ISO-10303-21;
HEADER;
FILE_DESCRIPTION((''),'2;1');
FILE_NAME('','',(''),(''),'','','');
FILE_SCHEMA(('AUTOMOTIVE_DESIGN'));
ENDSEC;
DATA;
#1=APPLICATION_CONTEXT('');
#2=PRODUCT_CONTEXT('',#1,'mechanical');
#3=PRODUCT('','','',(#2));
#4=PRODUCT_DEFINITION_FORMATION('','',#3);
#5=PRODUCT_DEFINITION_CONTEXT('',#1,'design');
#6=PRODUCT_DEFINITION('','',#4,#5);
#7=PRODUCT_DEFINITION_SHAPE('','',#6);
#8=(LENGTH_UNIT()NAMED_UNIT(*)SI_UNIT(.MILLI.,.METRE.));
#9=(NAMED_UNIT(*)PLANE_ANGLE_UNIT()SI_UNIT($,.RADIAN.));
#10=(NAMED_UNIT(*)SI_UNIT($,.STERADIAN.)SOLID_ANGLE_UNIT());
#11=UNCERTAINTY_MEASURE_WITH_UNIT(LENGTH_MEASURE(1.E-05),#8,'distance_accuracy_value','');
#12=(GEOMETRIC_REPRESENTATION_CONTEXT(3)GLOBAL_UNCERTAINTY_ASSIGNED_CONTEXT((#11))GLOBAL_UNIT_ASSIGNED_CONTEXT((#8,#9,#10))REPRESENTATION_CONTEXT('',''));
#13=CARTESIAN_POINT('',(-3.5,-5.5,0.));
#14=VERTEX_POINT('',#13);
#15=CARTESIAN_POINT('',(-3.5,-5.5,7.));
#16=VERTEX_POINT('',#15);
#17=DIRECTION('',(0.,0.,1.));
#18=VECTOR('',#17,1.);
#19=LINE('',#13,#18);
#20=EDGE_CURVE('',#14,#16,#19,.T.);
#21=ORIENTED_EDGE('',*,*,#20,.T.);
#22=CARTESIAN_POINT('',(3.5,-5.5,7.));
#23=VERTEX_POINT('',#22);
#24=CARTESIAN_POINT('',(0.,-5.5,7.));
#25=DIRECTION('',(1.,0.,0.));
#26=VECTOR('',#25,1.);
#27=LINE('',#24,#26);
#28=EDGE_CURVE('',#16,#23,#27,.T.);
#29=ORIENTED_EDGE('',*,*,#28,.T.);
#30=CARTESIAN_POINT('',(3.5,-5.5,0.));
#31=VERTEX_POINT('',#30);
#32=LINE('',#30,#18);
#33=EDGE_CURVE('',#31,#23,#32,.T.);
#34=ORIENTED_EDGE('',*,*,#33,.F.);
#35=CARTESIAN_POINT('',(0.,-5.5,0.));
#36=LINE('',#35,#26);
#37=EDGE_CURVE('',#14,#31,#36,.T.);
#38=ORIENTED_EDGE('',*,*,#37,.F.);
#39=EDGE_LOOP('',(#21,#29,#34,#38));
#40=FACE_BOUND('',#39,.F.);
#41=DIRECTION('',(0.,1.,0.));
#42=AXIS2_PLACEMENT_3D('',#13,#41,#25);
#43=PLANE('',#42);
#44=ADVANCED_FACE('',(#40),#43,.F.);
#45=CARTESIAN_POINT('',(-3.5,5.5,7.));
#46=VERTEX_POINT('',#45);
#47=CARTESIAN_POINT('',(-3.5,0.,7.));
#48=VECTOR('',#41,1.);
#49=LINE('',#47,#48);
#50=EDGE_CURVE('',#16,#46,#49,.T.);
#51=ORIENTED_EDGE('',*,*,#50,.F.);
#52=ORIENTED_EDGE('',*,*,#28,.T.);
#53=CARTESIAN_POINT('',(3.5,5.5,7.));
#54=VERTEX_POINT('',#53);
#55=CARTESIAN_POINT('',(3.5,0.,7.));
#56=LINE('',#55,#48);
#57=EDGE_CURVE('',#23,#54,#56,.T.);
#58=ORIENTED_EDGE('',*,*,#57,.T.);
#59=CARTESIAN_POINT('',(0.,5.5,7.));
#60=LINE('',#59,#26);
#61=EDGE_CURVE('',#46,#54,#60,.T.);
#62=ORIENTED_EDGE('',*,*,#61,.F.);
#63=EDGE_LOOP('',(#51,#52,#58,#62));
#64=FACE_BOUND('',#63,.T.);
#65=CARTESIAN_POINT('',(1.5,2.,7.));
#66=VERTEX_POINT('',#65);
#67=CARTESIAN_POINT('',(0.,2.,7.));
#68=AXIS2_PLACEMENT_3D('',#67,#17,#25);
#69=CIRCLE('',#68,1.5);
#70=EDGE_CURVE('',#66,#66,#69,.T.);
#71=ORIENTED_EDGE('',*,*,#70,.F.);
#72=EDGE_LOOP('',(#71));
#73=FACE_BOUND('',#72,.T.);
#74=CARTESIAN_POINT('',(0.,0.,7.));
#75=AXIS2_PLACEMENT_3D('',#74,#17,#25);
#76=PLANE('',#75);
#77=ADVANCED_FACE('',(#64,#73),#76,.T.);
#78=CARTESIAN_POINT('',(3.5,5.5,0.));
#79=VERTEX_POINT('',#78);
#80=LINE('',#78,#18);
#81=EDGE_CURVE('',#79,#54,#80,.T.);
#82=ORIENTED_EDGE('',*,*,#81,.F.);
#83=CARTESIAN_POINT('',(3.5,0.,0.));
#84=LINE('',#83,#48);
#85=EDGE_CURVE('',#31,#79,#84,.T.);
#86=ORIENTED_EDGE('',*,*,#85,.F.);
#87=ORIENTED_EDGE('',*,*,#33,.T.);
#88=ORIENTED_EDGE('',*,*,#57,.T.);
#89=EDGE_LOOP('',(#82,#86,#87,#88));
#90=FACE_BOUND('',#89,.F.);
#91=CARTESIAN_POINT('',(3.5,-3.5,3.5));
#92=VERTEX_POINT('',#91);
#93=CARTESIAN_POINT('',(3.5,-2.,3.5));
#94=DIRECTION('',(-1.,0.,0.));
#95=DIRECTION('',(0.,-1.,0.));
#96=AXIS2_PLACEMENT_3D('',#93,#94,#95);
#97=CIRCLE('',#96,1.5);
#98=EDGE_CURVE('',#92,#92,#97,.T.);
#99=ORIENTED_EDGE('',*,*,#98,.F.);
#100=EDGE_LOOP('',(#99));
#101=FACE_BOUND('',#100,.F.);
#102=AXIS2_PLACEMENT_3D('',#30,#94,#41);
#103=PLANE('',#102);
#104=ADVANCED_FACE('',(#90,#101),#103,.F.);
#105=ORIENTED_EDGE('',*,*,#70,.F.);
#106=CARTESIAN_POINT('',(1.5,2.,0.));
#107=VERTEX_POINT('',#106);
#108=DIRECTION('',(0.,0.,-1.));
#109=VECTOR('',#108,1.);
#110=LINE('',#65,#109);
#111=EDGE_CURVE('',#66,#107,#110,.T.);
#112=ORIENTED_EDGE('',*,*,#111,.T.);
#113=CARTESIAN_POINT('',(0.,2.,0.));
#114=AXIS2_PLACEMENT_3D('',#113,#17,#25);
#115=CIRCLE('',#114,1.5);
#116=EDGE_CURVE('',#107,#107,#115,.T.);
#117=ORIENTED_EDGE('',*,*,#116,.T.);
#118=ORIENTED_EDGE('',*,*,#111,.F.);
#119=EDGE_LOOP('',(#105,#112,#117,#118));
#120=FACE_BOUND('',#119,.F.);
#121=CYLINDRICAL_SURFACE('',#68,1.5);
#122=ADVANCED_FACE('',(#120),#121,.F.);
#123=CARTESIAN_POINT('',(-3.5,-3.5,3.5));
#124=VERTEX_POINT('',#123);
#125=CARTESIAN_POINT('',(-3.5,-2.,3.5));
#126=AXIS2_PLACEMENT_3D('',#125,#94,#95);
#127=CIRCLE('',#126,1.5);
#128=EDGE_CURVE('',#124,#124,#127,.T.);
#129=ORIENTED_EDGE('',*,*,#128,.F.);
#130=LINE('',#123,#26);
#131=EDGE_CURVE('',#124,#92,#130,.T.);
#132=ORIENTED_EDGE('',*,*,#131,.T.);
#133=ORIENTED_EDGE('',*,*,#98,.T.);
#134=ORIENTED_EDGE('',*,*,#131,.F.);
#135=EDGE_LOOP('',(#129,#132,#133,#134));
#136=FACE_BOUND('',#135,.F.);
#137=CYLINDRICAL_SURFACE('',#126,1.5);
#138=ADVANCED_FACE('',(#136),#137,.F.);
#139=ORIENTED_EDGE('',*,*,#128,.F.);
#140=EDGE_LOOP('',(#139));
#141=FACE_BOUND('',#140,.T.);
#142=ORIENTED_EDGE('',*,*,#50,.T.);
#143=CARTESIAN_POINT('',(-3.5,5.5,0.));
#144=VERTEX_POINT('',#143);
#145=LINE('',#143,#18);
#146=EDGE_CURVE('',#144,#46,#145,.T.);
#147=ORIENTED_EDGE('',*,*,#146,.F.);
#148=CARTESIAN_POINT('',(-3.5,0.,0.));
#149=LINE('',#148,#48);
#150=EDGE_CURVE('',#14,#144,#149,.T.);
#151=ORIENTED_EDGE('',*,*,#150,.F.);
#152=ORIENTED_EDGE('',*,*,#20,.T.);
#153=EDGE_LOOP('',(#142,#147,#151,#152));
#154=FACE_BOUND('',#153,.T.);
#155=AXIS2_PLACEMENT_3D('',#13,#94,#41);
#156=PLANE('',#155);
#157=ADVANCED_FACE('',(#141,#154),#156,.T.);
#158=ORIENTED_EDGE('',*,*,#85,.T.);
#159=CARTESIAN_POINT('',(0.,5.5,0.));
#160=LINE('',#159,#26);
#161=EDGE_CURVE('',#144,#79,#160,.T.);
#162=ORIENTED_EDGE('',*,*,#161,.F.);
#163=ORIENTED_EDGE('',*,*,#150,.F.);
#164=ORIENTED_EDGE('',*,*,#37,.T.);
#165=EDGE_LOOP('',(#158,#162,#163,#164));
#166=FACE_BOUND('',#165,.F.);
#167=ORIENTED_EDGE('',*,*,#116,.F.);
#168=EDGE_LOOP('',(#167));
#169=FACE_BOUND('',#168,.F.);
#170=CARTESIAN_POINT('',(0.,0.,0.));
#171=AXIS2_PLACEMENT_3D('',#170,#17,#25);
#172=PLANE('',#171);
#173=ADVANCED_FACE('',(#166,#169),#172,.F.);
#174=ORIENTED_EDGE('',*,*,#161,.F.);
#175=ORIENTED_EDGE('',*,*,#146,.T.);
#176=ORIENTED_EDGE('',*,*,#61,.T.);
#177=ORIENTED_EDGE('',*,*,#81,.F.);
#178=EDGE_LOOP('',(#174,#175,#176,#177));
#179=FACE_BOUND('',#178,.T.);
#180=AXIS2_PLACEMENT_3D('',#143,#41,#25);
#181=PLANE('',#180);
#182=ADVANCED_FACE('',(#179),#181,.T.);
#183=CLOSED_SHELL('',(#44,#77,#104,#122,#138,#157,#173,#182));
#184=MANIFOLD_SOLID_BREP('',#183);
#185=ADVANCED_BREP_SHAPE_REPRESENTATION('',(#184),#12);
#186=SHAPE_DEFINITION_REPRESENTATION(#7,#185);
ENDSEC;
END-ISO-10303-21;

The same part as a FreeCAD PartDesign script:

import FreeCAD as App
import Part
import Sketcher
Q = App.Units.Quantity

doc = App.newDocument("Part")
body = doc.addObject("PartDesign::Body", "Body")

# Sketch on XY plane
sketch1 = body.newObject("Sketcher::SketchObject", "Sketch")
sketch1.AttachmentSupport = (doc.getObject("XY_Plane"), [""])
sketch1.MapMode = "FlatFace"
sketch1.addGeometry(Part.LineSegment(App.Vector(-4, 6, 0), App.Vector(-4, -6, 0)), False)
sketch1.addGeometry(Part.LineSegment(App.Vector(-4, -6, 0), App.Vector(4, -6, 0)), False)
sketch1.addGeometry(Part.LineSegment(App.Vector(4, -6, 0), App.Vector(4, 6, 0)), False)
sketch1.addGeometry(Part.LineSegment(App.Vector(4, 6, 0), App.Vector(-4, 6, 0)), False)
sketch1.addConstraint(Sketcher.Constraint("Coincident", 0, 2, 1, 1))
sketch1.addConstraint(Sketcher.Constraint("Coincident", 1, 2, 2, 1))
sketch1.addConstraint(Sketcher.Constraint("Coincident", 2, 2, 3, 1))
sketch1.addConstraint(Sketcher.Constraint("Coincident", 3, 2, 0, 1))
sketch1.addConstraint(Sketcher.Constraint("Vertical", 0))
sketch1.addConstraint(Sketcher.Constraint("Horizontal", 1))
sketch1.addConstraint(Sketcher.Constraint("Vertical", 2))
sketch1.addConstraint(Sketcher.Constraint("Horizontal", 3))
sketch1.addConstraint(Sketcher.Constraint("Symmetric", 0, 2, 2, 2, -1, 1))
sketch1.addConstraint(Sketcher.Constraint("DistanceX", 1, 1, 1, 2, Q("7 mm")))
sketch1.addConstraint(Sketcher.Constraint("DistanceY", 0, 2, 0, 1, Q("11 mm")))
pad1 = body.newObject("PartDesign::Pad", "Pad")
pad1.Profile = sketch1
pad1.Length = 7

# Sketch on XY plane
sketch2 = body.newObject("Sketcher::SketchObject", "Sketch001")
sketch2.AttachmentSupport = (doc.getObject("XY_Plane"), [""])
sketch2.MapMode = "FlatFace"
sketch2.AttachmentOffset = App.Placement(App.Vector(0, 0, 7), App.Rotation())
sketch2.addGeometry(Part.Circle(App.Vector(0, 2, 0), App.Vector(0, 0, 1), 1.5), False)
sketch2.addConstraint(Sketcher.Constraint("PointOnObject", 0, 3, -2))
sketch2.addConstraint(Sketcher.Constraint("Diameter", 0, Q("3 mm")))
sketch2.addConstraint(Sketcher.Constraint("DistanceY", -1, 1, 0, 3, Q("2 mm")))
pocket1 = body.newObject("PartDesign::Pocket", "Pocket")
pocket1.Profile = sketch2
pocket1.Type = "ThroughAll"

# Sketch on YZ plane
sketch3 = body.newObject("Sketcher::SketchObject", "Sketch002")
sketch3.AttachmentSupport = (doc.getObject("YZ_Plane"), [""])
sketch3.MapMode = "FlatFace"
sketch3.AttachmentOffset = App.Placement(App.Vector(0, 0, -3.5), App.Rotation())
sketch3.addGeometry(Part.Circle(App.Vector(-2, 3.5, 0), App.Vector(0, 0, 1), 1.5), False)
sketch3.addConstraint(Sketcher.Constraint("Diameter", 0, Q("3 mm")))
sketch3.addConstraint(Sketcher.Constraint("DistanceX", 0, 3, -1, 1, Q("2 mm")))
sketch3.addConstraint(Sketcher.Constraint("DistanceY", -1, 1, 0, 3, Q("3.5 mm")))
pocket2 = body.newObject("PartDesign::Pocket", "Pocket001")
pocket2.Profile = sketch3
pocket2.Length = 25
pocket2.Reversed = True

doc.recompute()
